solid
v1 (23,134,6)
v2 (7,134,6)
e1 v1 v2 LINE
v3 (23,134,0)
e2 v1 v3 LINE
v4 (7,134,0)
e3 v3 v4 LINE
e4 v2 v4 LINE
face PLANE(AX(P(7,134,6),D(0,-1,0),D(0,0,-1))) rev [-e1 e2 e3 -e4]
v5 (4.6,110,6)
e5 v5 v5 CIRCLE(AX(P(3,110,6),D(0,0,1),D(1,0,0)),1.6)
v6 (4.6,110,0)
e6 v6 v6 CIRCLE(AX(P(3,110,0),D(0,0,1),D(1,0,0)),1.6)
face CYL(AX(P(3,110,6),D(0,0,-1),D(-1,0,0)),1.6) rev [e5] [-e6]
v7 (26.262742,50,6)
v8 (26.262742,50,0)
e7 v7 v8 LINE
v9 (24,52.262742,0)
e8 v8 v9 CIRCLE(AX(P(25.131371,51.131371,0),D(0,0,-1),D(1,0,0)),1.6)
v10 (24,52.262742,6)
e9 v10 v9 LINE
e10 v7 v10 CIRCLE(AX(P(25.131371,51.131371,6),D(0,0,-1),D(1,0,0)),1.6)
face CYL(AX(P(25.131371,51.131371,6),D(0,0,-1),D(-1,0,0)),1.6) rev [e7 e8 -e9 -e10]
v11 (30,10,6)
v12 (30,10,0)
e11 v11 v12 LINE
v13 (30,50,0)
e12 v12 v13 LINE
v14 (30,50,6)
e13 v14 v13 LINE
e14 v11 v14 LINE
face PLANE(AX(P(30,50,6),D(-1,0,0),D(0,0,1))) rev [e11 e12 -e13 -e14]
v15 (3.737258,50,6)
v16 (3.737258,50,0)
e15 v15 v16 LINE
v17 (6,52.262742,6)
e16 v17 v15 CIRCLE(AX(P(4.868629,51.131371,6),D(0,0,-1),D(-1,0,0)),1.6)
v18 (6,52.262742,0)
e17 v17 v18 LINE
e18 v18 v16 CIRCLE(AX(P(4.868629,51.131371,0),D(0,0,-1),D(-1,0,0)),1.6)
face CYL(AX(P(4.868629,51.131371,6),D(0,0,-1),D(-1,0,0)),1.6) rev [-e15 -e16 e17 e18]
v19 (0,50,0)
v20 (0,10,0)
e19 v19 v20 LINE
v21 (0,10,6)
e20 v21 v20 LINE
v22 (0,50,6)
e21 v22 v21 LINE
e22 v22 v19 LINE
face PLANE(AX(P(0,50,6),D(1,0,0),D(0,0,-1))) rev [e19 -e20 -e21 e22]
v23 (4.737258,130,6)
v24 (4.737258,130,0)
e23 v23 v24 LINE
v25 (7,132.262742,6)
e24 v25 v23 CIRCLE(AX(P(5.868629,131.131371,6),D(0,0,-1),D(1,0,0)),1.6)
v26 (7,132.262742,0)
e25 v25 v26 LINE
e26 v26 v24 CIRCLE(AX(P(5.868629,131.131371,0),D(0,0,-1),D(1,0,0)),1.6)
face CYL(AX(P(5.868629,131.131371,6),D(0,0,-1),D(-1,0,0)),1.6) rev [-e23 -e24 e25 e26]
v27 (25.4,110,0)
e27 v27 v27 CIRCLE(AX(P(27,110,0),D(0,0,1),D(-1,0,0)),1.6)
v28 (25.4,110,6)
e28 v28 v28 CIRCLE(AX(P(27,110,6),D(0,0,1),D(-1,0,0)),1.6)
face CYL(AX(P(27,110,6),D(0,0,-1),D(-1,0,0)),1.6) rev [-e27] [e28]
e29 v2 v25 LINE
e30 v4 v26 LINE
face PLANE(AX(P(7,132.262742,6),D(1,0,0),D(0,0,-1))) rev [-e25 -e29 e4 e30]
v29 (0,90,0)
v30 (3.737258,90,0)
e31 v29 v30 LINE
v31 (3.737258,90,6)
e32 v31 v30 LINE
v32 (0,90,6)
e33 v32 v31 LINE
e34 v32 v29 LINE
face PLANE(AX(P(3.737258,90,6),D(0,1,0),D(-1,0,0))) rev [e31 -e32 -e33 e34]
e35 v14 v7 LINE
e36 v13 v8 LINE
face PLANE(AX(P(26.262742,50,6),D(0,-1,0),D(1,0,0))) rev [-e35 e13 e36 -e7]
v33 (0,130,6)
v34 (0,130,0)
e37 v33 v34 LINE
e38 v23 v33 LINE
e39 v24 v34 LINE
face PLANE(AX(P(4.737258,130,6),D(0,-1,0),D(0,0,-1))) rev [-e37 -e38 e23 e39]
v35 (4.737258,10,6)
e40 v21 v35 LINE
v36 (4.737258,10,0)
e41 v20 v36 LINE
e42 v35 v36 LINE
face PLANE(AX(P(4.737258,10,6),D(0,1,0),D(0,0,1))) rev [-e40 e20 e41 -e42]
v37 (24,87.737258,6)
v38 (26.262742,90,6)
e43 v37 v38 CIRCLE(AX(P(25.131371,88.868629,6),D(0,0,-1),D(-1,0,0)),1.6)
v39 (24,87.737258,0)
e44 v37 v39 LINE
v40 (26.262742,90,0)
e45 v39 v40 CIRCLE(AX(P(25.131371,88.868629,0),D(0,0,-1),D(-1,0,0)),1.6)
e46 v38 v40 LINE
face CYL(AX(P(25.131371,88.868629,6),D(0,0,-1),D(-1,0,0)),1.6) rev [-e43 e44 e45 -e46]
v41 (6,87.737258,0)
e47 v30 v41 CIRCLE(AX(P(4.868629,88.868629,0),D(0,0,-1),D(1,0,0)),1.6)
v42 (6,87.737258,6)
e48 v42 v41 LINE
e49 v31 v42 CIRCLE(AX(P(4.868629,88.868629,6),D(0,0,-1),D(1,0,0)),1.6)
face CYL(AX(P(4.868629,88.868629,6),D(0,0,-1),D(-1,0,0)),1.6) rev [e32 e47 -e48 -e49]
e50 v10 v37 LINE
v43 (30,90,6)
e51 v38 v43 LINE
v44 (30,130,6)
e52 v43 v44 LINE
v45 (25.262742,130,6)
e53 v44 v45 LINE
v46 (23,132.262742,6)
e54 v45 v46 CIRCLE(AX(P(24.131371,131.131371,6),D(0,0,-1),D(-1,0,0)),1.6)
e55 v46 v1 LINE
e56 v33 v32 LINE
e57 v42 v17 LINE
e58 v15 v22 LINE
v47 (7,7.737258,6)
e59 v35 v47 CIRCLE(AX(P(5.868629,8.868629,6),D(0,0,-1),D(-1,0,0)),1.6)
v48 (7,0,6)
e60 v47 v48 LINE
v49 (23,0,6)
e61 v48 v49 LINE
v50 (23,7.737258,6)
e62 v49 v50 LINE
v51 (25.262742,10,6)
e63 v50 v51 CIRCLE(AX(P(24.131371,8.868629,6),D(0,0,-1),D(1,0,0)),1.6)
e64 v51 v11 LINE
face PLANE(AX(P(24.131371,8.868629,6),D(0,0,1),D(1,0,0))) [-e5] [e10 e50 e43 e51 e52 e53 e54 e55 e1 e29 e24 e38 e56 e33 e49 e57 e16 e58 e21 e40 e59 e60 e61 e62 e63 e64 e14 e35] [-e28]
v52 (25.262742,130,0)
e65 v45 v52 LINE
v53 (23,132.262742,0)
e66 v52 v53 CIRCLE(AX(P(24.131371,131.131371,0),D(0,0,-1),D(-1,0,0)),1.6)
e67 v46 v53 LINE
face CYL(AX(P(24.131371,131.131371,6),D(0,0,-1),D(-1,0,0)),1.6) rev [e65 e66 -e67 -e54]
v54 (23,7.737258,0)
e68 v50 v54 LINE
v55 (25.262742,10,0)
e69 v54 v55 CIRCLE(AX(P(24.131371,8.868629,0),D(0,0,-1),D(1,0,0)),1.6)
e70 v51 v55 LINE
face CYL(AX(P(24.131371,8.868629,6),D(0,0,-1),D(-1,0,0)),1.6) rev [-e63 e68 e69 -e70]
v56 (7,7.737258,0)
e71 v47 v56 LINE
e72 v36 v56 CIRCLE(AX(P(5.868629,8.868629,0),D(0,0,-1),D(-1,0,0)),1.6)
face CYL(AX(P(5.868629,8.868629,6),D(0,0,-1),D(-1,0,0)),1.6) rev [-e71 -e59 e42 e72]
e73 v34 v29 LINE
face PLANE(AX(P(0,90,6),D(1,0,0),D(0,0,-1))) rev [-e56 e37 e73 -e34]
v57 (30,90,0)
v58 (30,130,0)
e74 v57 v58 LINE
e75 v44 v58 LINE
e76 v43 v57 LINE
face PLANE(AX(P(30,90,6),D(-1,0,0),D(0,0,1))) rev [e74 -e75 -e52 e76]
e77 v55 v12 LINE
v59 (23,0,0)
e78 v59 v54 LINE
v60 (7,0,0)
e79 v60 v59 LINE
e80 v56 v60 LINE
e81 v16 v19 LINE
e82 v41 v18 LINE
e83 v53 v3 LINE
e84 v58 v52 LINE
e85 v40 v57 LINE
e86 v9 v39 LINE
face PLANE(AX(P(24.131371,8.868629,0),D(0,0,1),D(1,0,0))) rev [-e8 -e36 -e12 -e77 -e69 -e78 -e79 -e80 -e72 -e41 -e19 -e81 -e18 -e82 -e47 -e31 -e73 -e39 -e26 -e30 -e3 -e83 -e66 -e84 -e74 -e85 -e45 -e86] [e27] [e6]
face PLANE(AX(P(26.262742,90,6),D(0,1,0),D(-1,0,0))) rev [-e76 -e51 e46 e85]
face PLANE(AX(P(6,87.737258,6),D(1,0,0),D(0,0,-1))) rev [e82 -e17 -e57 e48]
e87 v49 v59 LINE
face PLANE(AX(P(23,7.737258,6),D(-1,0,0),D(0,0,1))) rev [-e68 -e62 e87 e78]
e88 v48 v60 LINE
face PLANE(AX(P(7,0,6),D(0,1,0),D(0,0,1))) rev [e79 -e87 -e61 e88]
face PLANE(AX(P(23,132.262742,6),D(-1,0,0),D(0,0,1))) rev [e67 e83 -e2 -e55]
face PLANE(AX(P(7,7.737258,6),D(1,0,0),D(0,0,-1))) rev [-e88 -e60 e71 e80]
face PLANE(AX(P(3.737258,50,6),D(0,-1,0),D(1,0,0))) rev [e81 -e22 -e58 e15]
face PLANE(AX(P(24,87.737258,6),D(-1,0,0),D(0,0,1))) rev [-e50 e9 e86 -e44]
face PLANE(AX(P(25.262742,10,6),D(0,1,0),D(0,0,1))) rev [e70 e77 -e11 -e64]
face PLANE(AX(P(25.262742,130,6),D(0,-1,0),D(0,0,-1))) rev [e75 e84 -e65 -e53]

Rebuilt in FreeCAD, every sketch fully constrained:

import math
import FreeCAD as App
import Part
import Sketcher
from FreeCAD import Vector

doc = App.newDocument("Part")
body = doc.addObject("PartDesign::Body", "Body")

# Sketch on XY plane
sketch1 = body.newObject("Sketcher::SketchObject", "Sketch")
sketch1.AttachmentSupport = (doc.getObject("XY_Plane"), [""])
sketch1.MapMode = "FlatFace"
sketch1.addGeometry(Part.LineSegment(Vector(25.262742, 10, 0), Vector(30, 10, 0)), False)
sketch1.addGeometry(Part.LineSegment(Vector(30, 10, 0), Vector(30, 50, 0)), False)
sketch1.addGeometry(Part.LineSegment(Vector(30, 50, 0), Vector(26.262742, 50, 0)), False)
sketch1.addGeometry(Part.ArcOfCircle(Part.Circle(Vector(25.131371, 51.131371, 0), Vector(0, 0, 1), 1.6), math.radians(135), math.radians(315)), False)
sketch1.addGeometry(Part.LineSegment(Vector(24, 52.262742, 0), Vector(24, 87.737258, 0)), False)
sketch1.addGeometry(Part.ArcOfCircle(Part.Circle(Vector(25.131371, 88.868629, 0), Vector(0, 0, 1), 1.6), math.radians(45), math.radians(225)), False)
sketch1.addGeometry(Part.LineSegment(Vector(26.262742, 90, 0), Vector(30, 90, 0)), False)
sketch1.addGeometry(Part.LineSegment(Vector(30, 90, 0), Vector(30, 130, 0)), False)
sketch1.addGeometry(Part.LineSegment(Vector(30, 130, 0), Vector(25.262742, 130, 0)), False)
sketch1.addGeometry(Part.ArcOfCircle(Part.Circle(Vector(24.131371, 131.131371, 0), Vector(0, 0, 1), 1.6), math.radians(135), math.radians(315)), False)
sketch1.addGeometry(Part.LineSegment(Vector(23, 132.262742, 0), Vector(23, 134, 0)), False)
sketch1.addGeometry(Part.LineSegment(Vector(23, 134, 0), Vector(7, 134, 0)), False)
sketch1.addGeometry(Part.LineSegment(Vector(7, 134, 0), Vector(7, 132.262742, 0)), False)
sketch1.addGeometry(Part.ArcOfCircle(Part.Circle(Vector(5.868629, 131.131371, 0), Vector(0, 0, 1), 1.6), math.radians(-135), math.radians(45)), False)
sketch1.addGeometry(Part.LineSegment(Vector(4.737258, 130, 0), Vector(0, 130, 0)), False)
sketch1.addGeometry(Part.LineSegment(Vector(0, 130, 0), Vector(0, 90, 0)), False)
sketch1.addGeometry(Part.LineSegment(Vector(0, 90, 0), Vector(3.737258, 90, 0)), False)
sketch1.addGeometry(Part.ArcOfCircle(Part.Circle(Vector(4.868629, 88.868629, 0), Vector(0, 0, 1), 1.6), math.radians(-45), math.radians(135)), False)
sketch1.addGeometry(Part.LineSegment(Vector(6, 87.737258, 0), Vector(6, 52.262742, 0)), False)
sketch1.addGeometry(Part.ArcOfCircle(Part.Circle(Vector(4.868629, 51.131371, 0), Vector(0, 0, 1), 1.6), math.radians(-135), math.radians(45)), False)
sketch1.addGeometry(Part.LineSegment(Vector(3.737258, 50, 0), Vector(0, 50, 0)), False)
sketch1.addGeometry(Part.LineSegment(Vector(0, 50, 0), Vector(0, 10, 0)), False)
sketch1.addGeometry(Part.LineSegment(Vector(0, 10, 0), Vector(4.737258, 10, 0)), False)
sketch1.addGeometry(Part.ArcOfCircle(Part.Circle(Vector(5.868629, 8.868629, 0), Vector(0, 0, 1), 1.6), math.radians(-45), math.radians(135)), False)
sketch1.addGeometry(Part.LineSegment(Vector(7, 7.737258, 0), Vector(7, 0, 0)), False)
sketch1.addGeometry(Part.LineSegment(Vector(7, 0, 0), Vector(23, 0, 0)), False)
sketch1.addGeometry(Part.LineSegment(Vector(23, 0, 0), Vector(23, 7.737258, 0)), False)
sketch1.addGeometry(Part.ArcOfCircle(Part.Circle(Vector(24.131371, 8.868629, 0), Vector(0, 0, 1), 1.6), math.radians(45), math.radians(225)), False)
sketch1.addGeometry(Part.Circle(Vector(3, 110, 0), Vector(0, 0, 1), 1.6), False)
sketch1.addGeometry(Part.Circle(Vector(27, 110, 0), Vector(0, 0, 1), 1.6), False)
sketch1.addConstraint(Sketcher.Constraint("Coincident", 0, 2, 1, 1))
sketch1.addConstraint(Sketcher.Constraint("Coincident", 1, 2, 2, 1))
sketch1.addConstraint(Sketcher.Constraint("Coincident", 2, 2, 3, 2))
sketch1.addConstraint(Sketcher.Constraint("Coincident", 3, 1, 4, 1))
sketch1.addConstraint(Sketcher.Constraint("Coincident", 4, 2, 5, 2))
sketch1.addConstraint(Sketcher.Constraint("Coincident", 5, 1, 6, 1))
sketch1.addConstraint(Sketcher.Constraint("Coincident", 6, 2, 7, 1))
sketch1.addConstraint(Sketcher.Constraint("Coincident", 7, 2, 8, 1))
sketch1.addConstraint(Sketcher.Constraint("Coincident", 8, 2, 9, 2))
sketch1.addConstraint(Sketcher.Constraint("Coincident", 9, 1, 10, 1))
sketch1.addConstraint(Sketcher.Constraint("Coincident", 10, 2, 11, 1))
sketch1.addConstraint(Sketcher.Constraint("Coincident", 11, 2, 12, 1))
sketch1.addConstraint(Sketcher.Constraint("Coincident", 12, 2, 13, 2))
sketch1.addConstraint(Sketcher.Constraint("Coincident", 13, 1, 14, 1))
sketch1.addConstraint(Sketcher.Constraint("Coincident", 14, 2, 15, 1))
sketch1.addConstraint(Sketcher.Constraint("Coincident", 15, 2, 16, 1))
sketch1.addConstraint(Sketcher.Constraint("Coincident", 16, 2, 17, 2))
sketch1.addConstraint(Sketcher.Constraint("Coincident", 17, 1, 18, 1))
sketch1.addConstraint(Sketcher.Constraint("Coincident", 18, 2, 19, 2))
sketch1.addConstraint(Sketcher.Constraint("Coincident", 19, 1, 20, 1))
sketch1.addConstraint(Sketcher.Constraint("Coincident", 20, 2, 21, 1))
sketch1.addConstraint(Sketcher.Constraint("Coincident", 21, 2, 22, 1))
sketch1.addConstraint(Sketcher.Constraint("Coincident", 22, 2, 23, 2))
sketch1.addConstraint(Sketcher.Constraint("Coincident", 23, 1, 24, 1))
sketch1.addConstraint(Sketcher.Constraint("Coincident", 24, 2, 25, 1))
sketch1.addConstraint(Sketcher.Constraint("Coincident", 25, 2, 26, 1))
sketch1.addConstraint(Sketcher.Constraint("Coincident", 26, 2, 27, 2))
sketch1.addConstraint(Sketcher.Constraint("Coincident", 27, 1, 0, 1))
sketch1.addConstraint(Sketcher.Constraint("Horizontal", 0))
sketch1.addConstraint(Sketcher.Constraint("Vertical", 1))
sketch1.addConstraint(Sketcher.Constraint("Horizontal", 2))
sketch1.addConstraint(Sketcher.Constraint("Vertical", 4))
sketch1.addConstraint(Sketcher.Constraint("Horizontal", 6))
sketch1.addConstraint(Sketcher.Constraint("Vertical", 7))
sketch1.addConstraint(Sketcher.Constraint("Horizontal", 8))
sketch1.addConstraint(Sketcher.Constraint("Vertical", 10))
sketch1.addConstraint(Sketcher.Constraint("Horizontal", 11))
sketch1.addConstraint(Sketcher.Constraint("Vertical", 12))
sketch1.addConstraint(Sketcher.Constraint("Horizontal", 14))
sketch1.addConstraint(Sketcher.Constraint("Vertical", 15))
sketch1.addConstraint(Sketcher.Constraint("Horizontal", 16))
sketch1.addConstraint(Sketcher.Constraint("Vertical", 18))
sketch1.addConstraint(Sketcher.Constraint("Horizontal", 20))
sketch1.addConstraint(Sketcher.Constraint("Vertical", 21))
sketch1.addConstraint(Sketcher.Constraint("Horizontal", 22))
sketch1.addConstraint(Sketcher.Constraint("Vertical", 24))
sketch1.addConstraint(Sketcher.Constraint("Horizontal", 25))
sketch1.addConstraint(Sketcher.Constraint("Vertical", 26))
sketch1.addConstraint(Sketcher.Constraint("Equal", 3, 5))
sketch1.addConstraint(Sketcher.Constraint("Equal", 5, 9))
sketch1.addConstraint(Sketcher.Constraint("Equal", 9, 13))
sketch1.addConstraint(Sketcher.Constraint("Equal", 13, 17))
sketch1.addConstraint(Sketcher.Constraint("Equal", 17, 19))
sketch1.addConstraint(Sketcher.Constraint("Equal", 19, 23))
sketch1.addConstraint(Sketcher.Constraint("Equal", 23, 27))
sketch1.addConstraint(Sketcher.Constraint("Equal", 27, 28))
sketch1.addConstraint(Sketcher.Constraint("Equal", 28, 29))
sketch1.addConstraint(Sketcher.Constraint("PointOnObject", 14, 2, -2))
sketch1.addConstraint(Sketcher.Constraint("PointOnObject", 20, 2, -2))
sketch1.addConstraint(Sketcher.Constraint("PointOnObject", 24, 2, -1))
sketch1.addConstraint(Sketcher.Constraint("Horizontal", 9, 3, 13, 3))
sketch1.addConstraint(Sketcher.Constraint("Horizontal", 5, 3, 17, 3))
sketch1.addConstraint(Sketcher.Constraint("Horizontal", 3, 3, 19, 3))
sketch1.addConstraint(Sketcher.Constraint("Horizontal", 23, 3, 27, 3))
sketch1.addConstraint(Sketcher.Constraint("Horizontal", 28, 3, 29, 3))
sketch1.addConstraint(Sketcher.Constraint("Horizontal", 9, 1, 12, 2))
sketch1.addConstraint(Sketcher.Constraint("Horizontal", 8, 2, 13, 1))
sketch1.addConstraint(Sketcher.Constraint("Horizontal", 6, 2, 15, 2))
sketch1.addConstraint(Sketcher.Constraint("Horizontal", 4, 2, 17, 1))
sketch1.addConstraint(Sketcher.Constraint("Horizontal", 3, 1, 18, 2))
sketch1.addConstraint(Sketcher.Constraint("Horizontal", 2, 2, 19, 1))
sketch1.addConstraint(Sketcher.Constraint("Horizontal", 0, 2, 21, 2))
sketch1.addConstraint(Sketcher.Constraint("Horizontal", 23, 1, 26, 2))
sketch1.addConstraint(Sketcher.Constraint("Vertical", 3, 3, 5, 3))
sketch1.addConstraint(Sketcher.Constraint("Vertical", 13, 3, 23, 3))
sketch1.addConstraint(Sketcher.Constraint("Vertical", 9, 3, 27, 3))
sketch1.addConstraint(Sketcher.Constraint("Vertical", 2, 2, 5, 1))
sketch1.addConstraint(Sketcher.Constraint("Vertical", 1, 2, 6, 2))
sketch1.addConstraint(Sketcher.Constraint("Vertical", 13, 1, 22, 2))
sketch1.addConstraint(Sketcher.Constraint("Vertical", 12, 2, 23, 1))
sketch1.addConstraint(Sketcher.Constraint("Equal", 8, 14))
sketch1.addConstraint(Sketcher.Constraint("Equal", 6, 16))
sketch1.addConstraint(Sketcher.Constraint("Equal", 1, 7))
sketch1.addConstraint(Sketcher.Constraint("Diameter", 28, 3.2))
sketch1.addConstraint(Sketcher.Constraint("DistanceX", 11, 2, 11, 1, 16.0))
sketch1.addConstraint(Sketcher.Constraint("DistanceY", 1, 1, 1, 2, 40.0))
sketch1.addConstraint(Sketcher.Constraint("DistanceX", -1, 1, 28, 3, 3.0))
sketch1.addConstraint(Sketcher.Constraint("DistanceY", -1, 1, 28, 3, 110.0))
sketch1.addConstraint(Sketcher.Constraint("DistanceX", -1, 1, 29, 3, 27.0))
sketch1.addConstraint(Sketcher.Constraint("DistanceX", -1, 1, 0, 2, 30.0))
sketch1.addConstraint(Sketcher.Constraint("DistanceY", -1, 1, 0, 2, 10.0))
sketch1.addConstraint(Sketcher.Constraint("DistanceX", -1, 1, 3, 1, 24.0))
sketch1.addConstraint(Sketcher.Constraint("DistanceY", -1, 1, 5, 1, 90.0))
sketch1.addConstraint(Sketcher.Constraint("DistanceY", -1, 1, 10, 2, 134.0))
sketch1.addConstraint(Sketcher.Constraint("DistanceX", 9, 3, 5, 3, 1.0))
sketch1.addConstraint(Sketcher.Constraint("DistanceY", 3, 3, 9, 3, 80.0))
sketch1.addConstraint(Sketcher.Constraint("DistanceX", 0, 1, 0, 2, 4.737258))
sketch1.addConstraint(Sketcher.Constraint("DistanceX", -1, 1, 3, 3, 25.131371))
pad1 = body.newObject("PartDesign::Pad", "Pad")
pad1.Profile = sketch1
pad1.Length = 6

doc.recompute()
